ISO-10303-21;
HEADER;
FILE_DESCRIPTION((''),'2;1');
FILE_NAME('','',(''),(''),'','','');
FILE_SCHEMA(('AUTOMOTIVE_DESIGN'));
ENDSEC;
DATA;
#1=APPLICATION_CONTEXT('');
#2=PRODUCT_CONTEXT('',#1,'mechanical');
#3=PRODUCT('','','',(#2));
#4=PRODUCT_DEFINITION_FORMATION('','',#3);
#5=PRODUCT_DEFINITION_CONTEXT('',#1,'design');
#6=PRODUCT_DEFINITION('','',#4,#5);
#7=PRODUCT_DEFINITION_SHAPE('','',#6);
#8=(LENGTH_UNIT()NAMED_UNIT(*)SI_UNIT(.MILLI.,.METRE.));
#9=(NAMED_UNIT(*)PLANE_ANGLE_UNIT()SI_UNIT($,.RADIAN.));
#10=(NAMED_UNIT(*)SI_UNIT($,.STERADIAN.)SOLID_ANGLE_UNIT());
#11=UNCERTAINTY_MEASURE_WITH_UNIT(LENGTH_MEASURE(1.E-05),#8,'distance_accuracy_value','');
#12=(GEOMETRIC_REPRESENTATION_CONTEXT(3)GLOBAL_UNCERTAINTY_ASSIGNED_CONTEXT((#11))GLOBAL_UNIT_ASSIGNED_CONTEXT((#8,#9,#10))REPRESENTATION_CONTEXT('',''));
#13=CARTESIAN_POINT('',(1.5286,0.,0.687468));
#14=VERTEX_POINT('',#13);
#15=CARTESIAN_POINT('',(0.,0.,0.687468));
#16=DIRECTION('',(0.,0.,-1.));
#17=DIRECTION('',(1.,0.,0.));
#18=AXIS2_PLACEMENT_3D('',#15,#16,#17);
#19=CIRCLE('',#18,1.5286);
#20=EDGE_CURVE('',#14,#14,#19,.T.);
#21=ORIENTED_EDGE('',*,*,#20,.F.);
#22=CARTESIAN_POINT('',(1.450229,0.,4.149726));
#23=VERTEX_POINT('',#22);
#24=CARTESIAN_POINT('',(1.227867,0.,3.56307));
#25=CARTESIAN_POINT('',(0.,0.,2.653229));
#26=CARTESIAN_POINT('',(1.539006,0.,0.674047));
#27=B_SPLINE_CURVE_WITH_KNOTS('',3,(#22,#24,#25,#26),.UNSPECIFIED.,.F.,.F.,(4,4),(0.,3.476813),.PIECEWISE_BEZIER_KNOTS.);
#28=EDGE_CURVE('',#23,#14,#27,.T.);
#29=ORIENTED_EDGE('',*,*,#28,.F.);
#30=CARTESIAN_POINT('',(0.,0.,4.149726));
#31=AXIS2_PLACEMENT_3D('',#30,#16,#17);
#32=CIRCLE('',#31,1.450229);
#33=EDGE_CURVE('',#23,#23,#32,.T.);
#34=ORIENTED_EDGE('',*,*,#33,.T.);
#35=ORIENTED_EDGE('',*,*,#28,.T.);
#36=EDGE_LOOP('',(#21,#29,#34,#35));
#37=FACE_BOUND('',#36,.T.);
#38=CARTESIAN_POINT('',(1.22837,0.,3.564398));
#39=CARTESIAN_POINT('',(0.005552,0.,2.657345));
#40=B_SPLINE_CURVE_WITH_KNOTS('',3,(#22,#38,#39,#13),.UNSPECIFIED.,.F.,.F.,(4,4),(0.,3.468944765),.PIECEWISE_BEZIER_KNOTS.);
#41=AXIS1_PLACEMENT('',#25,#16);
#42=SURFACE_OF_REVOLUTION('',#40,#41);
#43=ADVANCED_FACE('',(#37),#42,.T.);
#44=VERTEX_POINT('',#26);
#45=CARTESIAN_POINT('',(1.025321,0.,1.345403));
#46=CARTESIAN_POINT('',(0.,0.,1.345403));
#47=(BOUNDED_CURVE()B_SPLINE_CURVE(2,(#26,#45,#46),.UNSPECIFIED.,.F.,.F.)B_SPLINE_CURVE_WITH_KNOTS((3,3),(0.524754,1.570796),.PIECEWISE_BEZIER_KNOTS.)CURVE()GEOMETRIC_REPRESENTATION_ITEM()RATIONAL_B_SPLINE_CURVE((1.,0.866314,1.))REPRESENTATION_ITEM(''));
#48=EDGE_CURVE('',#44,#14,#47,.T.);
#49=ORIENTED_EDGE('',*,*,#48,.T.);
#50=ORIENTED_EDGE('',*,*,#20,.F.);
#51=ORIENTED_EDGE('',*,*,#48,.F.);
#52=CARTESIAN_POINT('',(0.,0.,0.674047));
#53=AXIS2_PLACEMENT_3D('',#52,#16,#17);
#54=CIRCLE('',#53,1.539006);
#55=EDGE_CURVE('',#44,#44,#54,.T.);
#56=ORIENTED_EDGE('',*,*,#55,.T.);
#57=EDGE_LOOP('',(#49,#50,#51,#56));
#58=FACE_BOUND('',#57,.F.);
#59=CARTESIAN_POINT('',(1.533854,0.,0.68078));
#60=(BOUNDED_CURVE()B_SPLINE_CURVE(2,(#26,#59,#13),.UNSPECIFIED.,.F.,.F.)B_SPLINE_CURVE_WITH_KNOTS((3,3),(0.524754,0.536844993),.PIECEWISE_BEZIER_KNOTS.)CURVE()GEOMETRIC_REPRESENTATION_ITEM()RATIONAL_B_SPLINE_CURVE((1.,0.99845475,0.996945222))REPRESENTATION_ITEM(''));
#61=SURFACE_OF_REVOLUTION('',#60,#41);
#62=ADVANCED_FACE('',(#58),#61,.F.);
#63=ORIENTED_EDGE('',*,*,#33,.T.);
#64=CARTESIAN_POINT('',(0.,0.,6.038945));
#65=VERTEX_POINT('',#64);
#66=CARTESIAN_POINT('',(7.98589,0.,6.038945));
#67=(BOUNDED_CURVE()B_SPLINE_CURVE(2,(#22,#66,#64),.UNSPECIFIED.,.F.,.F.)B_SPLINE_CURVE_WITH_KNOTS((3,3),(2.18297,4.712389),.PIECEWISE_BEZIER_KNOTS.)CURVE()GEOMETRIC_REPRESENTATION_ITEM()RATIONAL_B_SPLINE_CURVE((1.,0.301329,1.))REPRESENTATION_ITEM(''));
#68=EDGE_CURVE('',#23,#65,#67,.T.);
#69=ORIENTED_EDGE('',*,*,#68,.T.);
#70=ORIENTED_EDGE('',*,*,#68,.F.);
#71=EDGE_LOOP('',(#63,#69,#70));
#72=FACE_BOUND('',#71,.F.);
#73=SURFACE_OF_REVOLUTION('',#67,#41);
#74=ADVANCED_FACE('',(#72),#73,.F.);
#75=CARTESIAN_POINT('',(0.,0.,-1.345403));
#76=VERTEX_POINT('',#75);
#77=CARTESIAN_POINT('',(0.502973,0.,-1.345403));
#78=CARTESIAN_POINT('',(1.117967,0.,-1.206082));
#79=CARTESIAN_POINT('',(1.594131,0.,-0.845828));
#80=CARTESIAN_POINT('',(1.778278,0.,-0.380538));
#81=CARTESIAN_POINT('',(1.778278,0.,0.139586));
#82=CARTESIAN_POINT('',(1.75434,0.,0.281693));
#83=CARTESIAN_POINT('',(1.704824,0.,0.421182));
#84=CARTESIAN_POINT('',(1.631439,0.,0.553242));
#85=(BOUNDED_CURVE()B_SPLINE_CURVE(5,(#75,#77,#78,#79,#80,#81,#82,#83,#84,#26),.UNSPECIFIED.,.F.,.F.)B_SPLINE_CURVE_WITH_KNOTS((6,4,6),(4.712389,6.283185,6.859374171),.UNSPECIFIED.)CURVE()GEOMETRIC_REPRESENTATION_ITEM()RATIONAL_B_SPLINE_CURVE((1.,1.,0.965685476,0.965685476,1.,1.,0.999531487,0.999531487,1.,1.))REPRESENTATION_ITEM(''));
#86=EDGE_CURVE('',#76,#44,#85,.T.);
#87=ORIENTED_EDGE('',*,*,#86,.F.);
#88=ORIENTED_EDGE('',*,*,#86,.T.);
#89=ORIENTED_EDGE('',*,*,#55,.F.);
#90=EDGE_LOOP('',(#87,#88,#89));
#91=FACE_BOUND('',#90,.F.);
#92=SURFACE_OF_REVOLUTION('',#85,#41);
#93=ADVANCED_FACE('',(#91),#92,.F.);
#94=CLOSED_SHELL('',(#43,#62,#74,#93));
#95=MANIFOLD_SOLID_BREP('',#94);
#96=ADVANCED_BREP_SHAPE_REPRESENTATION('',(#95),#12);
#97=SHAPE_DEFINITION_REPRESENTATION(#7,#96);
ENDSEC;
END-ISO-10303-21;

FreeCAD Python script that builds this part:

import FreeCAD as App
import Part
import Sketcher

V = App.Vector

doc = App.newDocument("Part")
params = doc.addObject("Spreadsheet::Sheet", "Params")
for row, (alias, value) in enumerate([
    ("revolution_angle", "360 deg"),
], start=1):
    params.set(f"A{row}", alias)
    params.set(f"B{row}", "=" + value)
    params.setAlias(f"B{row}", alias)

body = doc.addObject("PartDesign::Body", "Body")

sketch1 = body.newObject("Sketcher::SketchObject", "Sketch")
sketch1.AttachmentSupport = (doc.getObject("XZ_Plane"), [""])
sketch1.MapMode = "FlatFace"
sketch1.addGeometry([
    Part.LineSegment(V(0, 6.038945, 0), V(0, -1.345403, 0)),
    Part.BSplineCurve([V(0, -1.345403, 0), V(0.502973, -1.345403, 0), V(1.117967, -1.206082, 0), V(1.594131, -0.845828, 0), V(1.778278, -0.380538, 0), V(1.778278, 0.139586, 0), V(1.75434, 0.281693, 0), V(1.704824, 0.421182, 0), V(1.631439, 0.553242, 0), V(1.539006, 0.674047, 0)], [6, 4, 6], [4.712389, 6.283185, 6.859374171], False, 5, [1, 1, 0.965685476, 0.965685476, 1, 1, 0.999531487, 0.999531487, 1, 1], False),
    Part.BSplineCurve([V(1.539006, 0.674047, 0), V(1.533854, 0.68078, 0), V(1.5286, 0.687468, 0)], [3, 3], [0.524754, 0.536844993], False, 2, [1, 0.99845475, 0.996945222], False),
    Part.BSplineCurve([V(1.450229, 4.149726, 0), V(1.22837, 3.564398, 0), V(0.005552, 2.657345, 0), V(1.5286, 0.687468, 0)], [4, 4], [0, 3.468944765], False, 3, [1, 1, 1, 1], False),
    Part.BSplineCurve([V(1.450229, 4.149726, 0), V(7.98589, 6.038945, 0), V(0, 6.038945, 0)], [3, 3], [2.18297, 4.712389], False, 2, [1, 0.301329, 1], False),
], False)
sketch1.addConstraint([
    Sketcher.Constraint("Block", 1),
    Sketcher.Constraint("Block", 2),
    Sketcher.Constraint("Block", 3),
    Sketcher.Constraint("Block", 4),
    Sketcher.Constraint("Coincident", 0, 2, 1, 1),
    Sketcher.Constraint("Coincident", 4, 2, 0, 1),
])
revolution = body.newObject("PartDesign::Revolution", "Revolution")
revolution.Profile = sketch1
revolution.ReferenceAxis = (sketch1, ["V_Axis"])
revolution.setExpression("Angle", "Params.revolution_angle")

doc.recompute()
